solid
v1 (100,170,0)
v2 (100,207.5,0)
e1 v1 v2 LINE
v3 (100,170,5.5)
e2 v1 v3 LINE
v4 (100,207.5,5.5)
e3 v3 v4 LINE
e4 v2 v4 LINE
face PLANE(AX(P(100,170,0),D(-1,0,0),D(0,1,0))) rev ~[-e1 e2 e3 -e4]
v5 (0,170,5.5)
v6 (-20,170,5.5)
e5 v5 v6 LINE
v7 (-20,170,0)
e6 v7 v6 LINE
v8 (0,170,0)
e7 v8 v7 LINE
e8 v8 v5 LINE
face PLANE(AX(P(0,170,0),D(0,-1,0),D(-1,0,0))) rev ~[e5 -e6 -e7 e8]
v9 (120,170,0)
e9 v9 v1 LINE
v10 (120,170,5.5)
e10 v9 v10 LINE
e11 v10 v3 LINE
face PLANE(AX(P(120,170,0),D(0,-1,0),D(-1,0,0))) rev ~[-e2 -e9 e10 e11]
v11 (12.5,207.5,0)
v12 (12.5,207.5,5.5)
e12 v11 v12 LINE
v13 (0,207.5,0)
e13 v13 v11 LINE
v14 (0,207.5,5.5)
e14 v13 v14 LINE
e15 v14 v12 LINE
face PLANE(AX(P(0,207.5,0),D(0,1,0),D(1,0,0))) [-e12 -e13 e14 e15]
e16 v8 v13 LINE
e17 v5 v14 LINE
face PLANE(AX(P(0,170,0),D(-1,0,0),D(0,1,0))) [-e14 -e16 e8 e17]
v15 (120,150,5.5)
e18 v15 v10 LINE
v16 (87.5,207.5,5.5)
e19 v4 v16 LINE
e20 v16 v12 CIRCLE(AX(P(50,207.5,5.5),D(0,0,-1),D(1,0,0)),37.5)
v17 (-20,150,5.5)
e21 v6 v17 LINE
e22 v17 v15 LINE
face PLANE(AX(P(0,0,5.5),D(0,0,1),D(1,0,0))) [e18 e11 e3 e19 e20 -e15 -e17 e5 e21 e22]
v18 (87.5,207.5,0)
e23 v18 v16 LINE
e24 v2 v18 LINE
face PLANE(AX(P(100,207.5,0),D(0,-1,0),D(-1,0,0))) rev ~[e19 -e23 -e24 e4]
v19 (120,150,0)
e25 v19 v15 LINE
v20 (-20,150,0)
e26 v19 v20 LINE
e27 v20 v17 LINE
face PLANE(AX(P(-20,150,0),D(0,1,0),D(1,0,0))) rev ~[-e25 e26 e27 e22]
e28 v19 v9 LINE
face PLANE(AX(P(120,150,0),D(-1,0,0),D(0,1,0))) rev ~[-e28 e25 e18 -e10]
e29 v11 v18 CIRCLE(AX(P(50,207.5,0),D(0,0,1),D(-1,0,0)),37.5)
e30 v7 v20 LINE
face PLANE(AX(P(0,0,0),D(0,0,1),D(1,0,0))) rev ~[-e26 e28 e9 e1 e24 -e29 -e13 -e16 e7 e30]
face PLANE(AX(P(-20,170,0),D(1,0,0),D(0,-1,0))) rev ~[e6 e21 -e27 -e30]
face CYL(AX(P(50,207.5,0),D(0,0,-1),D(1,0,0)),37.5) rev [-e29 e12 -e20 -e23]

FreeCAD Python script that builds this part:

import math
import FreeCAD as App
import Part
import Sketcher
from FreeCAD import Vector

doc = App.newDocument("Part")
body = doc.addObject("PartDesign::Body", "Body")

# Sketch on XY plane
sketch1 = body.newObject("Sketcher::SketchObject", "Sketch")
sketch1.AttachmentSupport = (doc.getObject("XY_Plane"), [""])
sketch1.MapMode = "FlatFace"
sketch1.addGeometry(Part.LineSegment(Vector(0, 207.5, 0), Vector(0, 170, 0)), False)
sketch1.addGeometry(Part.LineSegment(Vector(0, 170, 0), Vector(-20, 170, 0)), False)
sketch1.addGeometry(Part.LineSegment(Vector(-20, 170, 0), Vector(-20, 150, 0)), False)
sketch1.addGeometry(Part.LineSegment(Vector(-20, 150, 0), Vector(120, 150, 0)), False)
sketch1.addGeometry(Part.LineSegment(Vector(120, 150, 0), Vector(120, 170, 0)), False)
sketch1.addGeometry(Part.LineSegment(Vector(120, 170, 0), Vector(100, 170, 0)), False)
sketch1.addGeometry(Part.LineSegment(Vector(100, 170, 0), Vector(100, 207.5, 0)), False)
sketch1.addGeometry(Part.LineSegment(Vector(100, 207.5, 0), Vector(87.5, 207.5, 0)), False)
sketch1.addGeometry(Part.ArcOfCircle(Part.Circle(Vector(50, 207.5, 0), Vector(0, 0, 1), 37.5), math.radians(180), math.radians(360)), False)
sketch1.addGeometry(Part.LineSegment(Vector(12.5, 207.5, 0), Vector(0, 207.5, 0)), False)
sketch1.addConstraint(Sketcher.Constraint("Coincident", 0, 2, 1, 1))
sketch1.addConstraint(Sketcher.Constraint("Coincident", 1, 2, 2, 1))
sketch1.addConstraint(Sketcher.Constraint("Coincident", 2, 2, 3, 1))
sketch1.addConstraint(Sketcher.Constraint("Coincident", 3, 2, 4, 1))
sketch1.addConstraint(Sketcher.Constraint("Coincident", 4, 2, 5, 1))
sketch1.addConstraint(Sketcher.Constraint("Coincident", 5, 2, 6, 1))
sketch1.addConstraint(Sketcher.Constraint("Coincident", 6, 2, 7, 1))
sketch1.addConstraint(Sketcher.Constraint("Coincident", 7, 2, 8, 2))
sketch1.addConstraint(Sketcher.Constraint("Coincident", 8, 1, 9, 1))
sketch1.addConstraint(Sketcher.Constraint("Coincident", 9, 2, 0, 1))
sketch1.addConstraint(Sketcher.Constraint("Vertical", 0))
sketch1.addConstraint(Sketcher.Constraint("Horizontal", 1))
sketch1.addConstraint(Sketcher.Constraint("Vertical", 2))
sketch1.addConstraint(Sketcher.Constraint("Horizontal", 3))
sketch1.addConstraint(Sketcher.Constraint("Vertical", 4))
sketch1.addConstraint(Sketcher.Constraint("Horizontal", 5))
sketch1.addConstraint(Sketcher.Constraint("Vertical", 6))
sketch1.addConstraint(Sketcher.Constraint("Horizontal", 7))
sketch1.addConstraint(Sketcher.Constraint("Horizontal", 9))
sketch1.addConstraint(Sketcher.Constraint("PointOnObject", 0, 2, -2))
sketch1.addConstraint(Sketcher.Constraint("Horizontal", 1, 2, 4, 2))
sketch1.addConstraint(Sketcher.Constraint("Horizontal", 8, 3, 6, 2))
sketch1.addConstraint(Sketcher.Constraint("Horizontal", 7, 2, 8, 1))
sketch1.addConstraint(Sketcher.Constraint("Equal", 1, 5))
sketch1.addConstraint(Sketcher.Constraint("Equal", 7, 9))
sketch1.addConstraint(Sketcher.Constraint("Equal", 5, 2))
sketch1.addConstraint(Sketcher.Constraint("Radius", 8, 37.5))
sketch1.addConstraint(Sketcher.Constraint("DistanceX", 3, 1, 3, 2, 140.0))
sketch1.addConstraint(Sketcher.Constraint("DistanceX", 1, 2, 1, 1, 20.0))
sketch1.addConstraint(Sketcher.Constraint("DistanceY", 0, 2, 0, 1, 37.5))
sketch1.addConstraint(Sketcher.Constraint("DistanceY", -1, 1, 0, 2, 170.0))
pad1 = body.newObject("PartDesign::Pad", "Pad")
pad1.Profile = sketch1
pad1.Length = 5.5

doc.recompute()
